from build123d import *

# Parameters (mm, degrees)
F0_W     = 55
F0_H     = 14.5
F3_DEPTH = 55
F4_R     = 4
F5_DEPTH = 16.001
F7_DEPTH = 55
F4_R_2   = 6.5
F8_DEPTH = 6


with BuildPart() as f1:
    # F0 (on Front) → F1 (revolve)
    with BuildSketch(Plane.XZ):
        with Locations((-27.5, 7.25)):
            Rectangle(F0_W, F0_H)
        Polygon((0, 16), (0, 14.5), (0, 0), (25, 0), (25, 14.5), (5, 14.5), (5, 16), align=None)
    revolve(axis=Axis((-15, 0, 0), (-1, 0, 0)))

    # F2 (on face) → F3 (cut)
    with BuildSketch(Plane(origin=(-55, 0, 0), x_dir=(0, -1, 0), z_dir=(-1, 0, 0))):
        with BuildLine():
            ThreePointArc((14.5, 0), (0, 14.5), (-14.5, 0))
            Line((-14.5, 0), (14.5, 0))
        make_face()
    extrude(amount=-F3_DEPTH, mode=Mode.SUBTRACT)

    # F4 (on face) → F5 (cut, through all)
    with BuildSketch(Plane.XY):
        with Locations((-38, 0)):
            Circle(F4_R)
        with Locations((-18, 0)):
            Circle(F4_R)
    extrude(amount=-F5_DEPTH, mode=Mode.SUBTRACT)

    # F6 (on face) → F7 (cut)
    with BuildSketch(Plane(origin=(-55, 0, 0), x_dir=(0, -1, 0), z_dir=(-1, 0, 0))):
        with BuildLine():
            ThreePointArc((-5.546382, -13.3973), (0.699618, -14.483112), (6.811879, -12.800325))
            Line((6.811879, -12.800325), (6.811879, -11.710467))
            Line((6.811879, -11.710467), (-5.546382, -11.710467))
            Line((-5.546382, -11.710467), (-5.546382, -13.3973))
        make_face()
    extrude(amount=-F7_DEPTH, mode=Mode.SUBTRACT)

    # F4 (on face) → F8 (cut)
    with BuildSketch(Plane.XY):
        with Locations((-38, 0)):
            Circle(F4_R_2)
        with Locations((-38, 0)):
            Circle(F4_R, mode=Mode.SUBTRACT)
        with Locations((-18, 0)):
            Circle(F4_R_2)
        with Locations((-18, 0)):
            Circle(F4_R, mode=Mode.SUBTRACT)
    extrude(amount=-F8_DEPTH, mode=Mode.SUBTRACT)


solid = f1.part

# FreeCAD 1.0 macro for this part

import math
import FreeCAD as App
import Part
import Sketcher

V = App.Vector

doc = App.newDocument("Part")
body = doc.addObject("PartDesign::Body", "Body")

# Sketch on XZ plane
sketch1 = body.newObject("Sketcher::SketchObject", "Sketch")
sketch1.AttachmentSupport = (doc.getObject("XZ_Plane"), [""])
sketch1.MapMode = "FlatFace"
sketch1.addGeometry(Part.LineSegment(V(-55, 14.5, 0), V(-55, 0, 0)), False)
sketch1.addGeometry(Part.LineSegment(V(-55, 0, 0), V(25, 0, 0)), False)
sketch1.addGeometry(Part.LineSegment(V(25, 0, 0), V(25, 14.5, 0)), False)
sketch1.addGeometry(Part.LineSegment(V(25, 14.5, 0), V(5, 14.5, 0)), False)
sketch1.addGeometry(Part.LineSegment(V(5, 14.5, 0), V(5, 16, 0)), False)
sketch1.addGeometry(Part.LineSegment(V(5, 16, 0), V(0, 16, 0)), False)
sketch1.addGeometry(Part.LineSegment(V(0, 16, 0), V(0, 14.5, 0)), False)
sketch1.addGeometry(Part.LineSegment(V(0, 14.5, 0), V(-55, 14.5, 0)), False)
sketch1.addConstraint(Sketcher.Constraint("Coincident", 0, 2, 1, 1))
sketch1.addConstraint(Sketcher.Constraint("Coincident", 1, 2, 2, 1))
sketch1.addConstraint(Sketcher.Constraint("Coincident", 2, 2, 3, 1))
sketch1.addConstraint(Sketcher.Constraint("Coincident", 3, 2, 4, 1))
sketch1.addConstraint(Sketcher.Constraint("Coincident", 4, 2, 5, 1))
sketch1.addConstraint(Sketcher.Constraint("Coincident", 5, 2, 6, 1))
sketch1.addConstraint(Sketcher.Constraint("Coincident", 6, 2, 7, 1))
sketch1.addConstraint(Sketcher.Constraint("Coincident", 7, 2, 0, 1))
sketch1.addConstraint(Sketcher.Constraint("Vertical", 0))
sketch1.addConstraint(Sketcher.Constraint("Horizontal", 1))
sketch1.addConstraint(Sketcher.Constraint("Vertical", 2))
sketch1.addConstraint(Sketcher.Constraint("Horizontal", 3))
sketch1.addConstraint(Sketcher.Constraint("Vertical", 4))
sketch1.addConstraint(Sketcher.Constraint("Horizontal", 5))
sketch1.addConstraint(Sketcher.Constraint("Vertical", 6))
sketch1.addConstraint(Sketcher.Constraint("Horizontal", 7))
sketch1.addConstraint(Sketcher.Constraint("PointOnObject", 0, 2, -1))
sketch1.addConstraint(Sketcher.Constraint("PointOnObject", 5, 2, -2))
sketch1.addConstraint(Sketcher.Constraint("Horizontal", 3, 2, 6, 2))
sketch1.addConstraint(Sketcher.Constraint("DistanceX", 1, 1, 1, 2, 80.0))
sketch1.addConstraint(Sketcher.Constraint("DistanceX", 3, 2, 3, 1, 20.0))
sketch1.addConstraint(Sketcher.Constraint("DistanceX", 5, 2, 5, 1, 5.0))
sketch1.addConstraint(Sketcher.Constraint("DistanceY", 0, 2, 0, 1, 14.5))
sketch1.addConstraint(Sketcher.Constraint("DistanceY", 4, 1, 4, 2, 1.5))
revolution = body.newObject("PartDesign::Revolution", "Revolution")
revolution.Profile = sketch1
revolution.ReferenceAxis = (sketch1, ["H_Axis"])
revolution.Angle = 360

# Sketch on YZ plane
sketch2 = body.newObject("Sketcher::SketchObject", "Sketch001")
sketch2.AttachmentSupport = (doc.getObject("YZ_Plane"), [""])
sketch2.MapMode = "FlatFace"
sketch2.AttachmentOffset = App.Placement(V(0, 0, -55), App.Rotation())
sketch2.addGeometry(Part.ArcOfCircle(Part.Circle(V(0, 0, 0), V(0, 0, 1), 14), math.radians(0), math.radians(180)), False)
sketch2.addGeometry(Part.LineSegment(V(14, 0, 0), V(-14, 0, 0)), False)
sketch2.addConstraint(Sketcher.Constraint("Coincident", 0, 1, 1, 1))
sketch2.addConstraint(Sketcher.Constraint("Coincident", 1, 2, 0, 2))
sketch2.addConstraint(Sketcher.Constraint("Horizontal", 1))
sketch2.addConstraint(Sketcher.Constraint("Coincident", 0, 3, -1, 1))
sketch2.addConstraint(Sketcher.Constraint("PointOnObject", 0, 1, -1))
sketch2.addConstraint(Sketcher.Constraint("Radius", 0, 14.5))
pocket1 = body.newObject("PartDesign::Pocket", "Pocket")
pocket1.Profile = sketch2
pocket1.Length = 55
pocket1.Reversed = True

# Sketch on XY plane
sketch3 = body.newObject("Sketcher::SketchObject", "Sketch002")
sketch3.AttachmentSupport = (doc.getObject("XY_Plane"), [""])
sketch3.MapMode = "FlatFace"
sketch3.addGeometry(Part.Circle(V(-38, 0, 0), V(0, 0, 1), 4), False)
sketch3.addGeometry(Part.Circle(V(-18, 0, 0), V(0, 0, 1), 4), False)
sketch3.addConstraint(Sketcher.Constraint("Equal", 0, 1))
sketch3.addConstraint(Sketcher.Constraint("PointOnObject", 0, 3, -1))
sketch3.addConstraint(Sketcher.Constraint("PointOnObject", 1, 3, -1))
sketch3.addConstraint(Sketcher.Constraint("Diameter", 0, 8.0))
sketch3.addConstraint(Sketcher.Constraint("DistanceX", 0, 3, -1, 1, 38.0))
sketch3.addConstraint(Sketcher.Constraint("DistanceX", 1, 3, -1, 1, 18.0))
pocket2 = body.newObject("PartDesign::Pocket", "Pocket001")
pocket2.Profile = sketch3
pocket2.Type = "ThroughAll"

# Sketch on YZ plane
sketch4 = body.newObject("Sketcher::SketchObject", "Sketch003")
sketch4.AttachmentSupport = (doc.getObject("YZ_Plane"), [""])
sketch4.MapMode = "FlatFace"
sketch4.AttachmentOffset = App.Placement(V(0, 0, -55), App.Rotation())
sketch4.addGeometry(Part.ArcOfCircle(Part.Circle(V(0, 0, 0), V(0, 0, 1), 14.5), math.radians(-118), math.radians(-68)), False)
sketch4.addGeometry(Part.LineSegment(V(-6.8, -12.8, 0), V(-6.8, -11.7, 0)), False)
sketch4.addGeometry(Part.LineSegment(V(-6.8, -11.7, 0), V(5.5, -11.7, 0)), False)
sketch4.addGeometry(Part.LineSegment(V(5.5, -11.7, 0), V(5.5, -13.4, 0)), False)
sketch4.addConstraint(Sketcher.Constraint("Coincident", 0, 1, 1, 1))
sketch4.addConstraint(Sketcher.Constraint("Coincident", 1, 2, 2, 1))
sketch4.addConstraint(Sketcher.Constraint("Coincident", 2, 2, 3, 1))
sketch4.addConstraint(Sketcher.Constraint("Coincident", 3, 2, 0, 2))
sketch4.addConstraint(Sketcher.Constraint("Vertical", 1))
sketch4.addConstraint(Sketcher.Constraint("Horizontal", 2))
sketch4.addConstraint(Sketcher.Constraint("Vertical", 3))
sketch4.addConstraint(Sketcher.Constraint("Coincident", 0, 3, -1, 1))
sketch4.addConstraint(Sketcher.Constraint("Radius", 0, 14.500003))
sketch4.addConstraint(Sketcher.Constraint("DistanceX", 2, 1, 2, 2, 12.358261))
sketch4.addConstraint(Sketcher.Constraint("DistanceY", 1, 1, 1, 2, 1.089858))
sketch4.addConstraint(Sketcher.Constraint("DistanceY", 3, 2, -1, 1, 13.3973))
pocket3 = body.newObject("PartDesign::Pocket", "Pocket002")
pocket3.Profile = sketch4
pocket3.Length = 55
pocket3.Reversed = True

# Sketch on XY plane
sketch5 = body.newObject("Sketcher::SketchObject", "Sketch004")
sketch5.AttachmentSupport = (doc.getObject("XY_Plane"), [""])
sketch5.MapMode = "FlatFace"
sketch5.addGeometry(Part.Circle(V(-38, 0, 0), V(0, 0, 1), 6.5), False)
sketch5.addGeometry(Part.Circle(V(-38, 0, 0), V(0, 0, 1), 4), False)
sketch5.addGeometry(Part.Circle(V(-18, 0, 0), V(0, 0, 1), 6.5), False)
sketch5.addGeometry(Part.Circle(V(-18, 0, 0), V(0, 0, 1), 4), False)
sketch5.addConstraint(Sketcher.Constraint("Coincident", 1, 3, 0, 3))
sketch5.addConstraint(Sketcher.Constraint("Coincident", 3, 3, 2, 3))
sketch5.addConstraint(Sketcher.Constraint("Equal", 0, 2))
sketch5.addConstraint(Sketcher.Constraint("Equal", 1, 3))
sketch5.addConstraint(Sketcher.Constraint("PointOnObject", 0, 3, -1))
sketch5.addConstraint(Sketcher.Constraint("PointOnObject", 2, 3, -1))
sketch5.addConstraint(Sketcher.Constraint("Diameter", 0, 13.0))
sketch5.addConstraint(Sketcher.Constraint("Diameter", 1, 8.0))
sketch5.addConstraint(Sketcher.Constraint("DistanceX", 0, 3, -1, 1, 38.0))
sketch5.addConstraint(Sketcher.Constraint("DistanceX", 2, 3, -1, 1, 18.0))
pocket4 = body.newObject("PartDesign::Pocket", "Pocket003")
pocket4.Profile = sketch5
pocket4.Length = 6

doc.recompute()
